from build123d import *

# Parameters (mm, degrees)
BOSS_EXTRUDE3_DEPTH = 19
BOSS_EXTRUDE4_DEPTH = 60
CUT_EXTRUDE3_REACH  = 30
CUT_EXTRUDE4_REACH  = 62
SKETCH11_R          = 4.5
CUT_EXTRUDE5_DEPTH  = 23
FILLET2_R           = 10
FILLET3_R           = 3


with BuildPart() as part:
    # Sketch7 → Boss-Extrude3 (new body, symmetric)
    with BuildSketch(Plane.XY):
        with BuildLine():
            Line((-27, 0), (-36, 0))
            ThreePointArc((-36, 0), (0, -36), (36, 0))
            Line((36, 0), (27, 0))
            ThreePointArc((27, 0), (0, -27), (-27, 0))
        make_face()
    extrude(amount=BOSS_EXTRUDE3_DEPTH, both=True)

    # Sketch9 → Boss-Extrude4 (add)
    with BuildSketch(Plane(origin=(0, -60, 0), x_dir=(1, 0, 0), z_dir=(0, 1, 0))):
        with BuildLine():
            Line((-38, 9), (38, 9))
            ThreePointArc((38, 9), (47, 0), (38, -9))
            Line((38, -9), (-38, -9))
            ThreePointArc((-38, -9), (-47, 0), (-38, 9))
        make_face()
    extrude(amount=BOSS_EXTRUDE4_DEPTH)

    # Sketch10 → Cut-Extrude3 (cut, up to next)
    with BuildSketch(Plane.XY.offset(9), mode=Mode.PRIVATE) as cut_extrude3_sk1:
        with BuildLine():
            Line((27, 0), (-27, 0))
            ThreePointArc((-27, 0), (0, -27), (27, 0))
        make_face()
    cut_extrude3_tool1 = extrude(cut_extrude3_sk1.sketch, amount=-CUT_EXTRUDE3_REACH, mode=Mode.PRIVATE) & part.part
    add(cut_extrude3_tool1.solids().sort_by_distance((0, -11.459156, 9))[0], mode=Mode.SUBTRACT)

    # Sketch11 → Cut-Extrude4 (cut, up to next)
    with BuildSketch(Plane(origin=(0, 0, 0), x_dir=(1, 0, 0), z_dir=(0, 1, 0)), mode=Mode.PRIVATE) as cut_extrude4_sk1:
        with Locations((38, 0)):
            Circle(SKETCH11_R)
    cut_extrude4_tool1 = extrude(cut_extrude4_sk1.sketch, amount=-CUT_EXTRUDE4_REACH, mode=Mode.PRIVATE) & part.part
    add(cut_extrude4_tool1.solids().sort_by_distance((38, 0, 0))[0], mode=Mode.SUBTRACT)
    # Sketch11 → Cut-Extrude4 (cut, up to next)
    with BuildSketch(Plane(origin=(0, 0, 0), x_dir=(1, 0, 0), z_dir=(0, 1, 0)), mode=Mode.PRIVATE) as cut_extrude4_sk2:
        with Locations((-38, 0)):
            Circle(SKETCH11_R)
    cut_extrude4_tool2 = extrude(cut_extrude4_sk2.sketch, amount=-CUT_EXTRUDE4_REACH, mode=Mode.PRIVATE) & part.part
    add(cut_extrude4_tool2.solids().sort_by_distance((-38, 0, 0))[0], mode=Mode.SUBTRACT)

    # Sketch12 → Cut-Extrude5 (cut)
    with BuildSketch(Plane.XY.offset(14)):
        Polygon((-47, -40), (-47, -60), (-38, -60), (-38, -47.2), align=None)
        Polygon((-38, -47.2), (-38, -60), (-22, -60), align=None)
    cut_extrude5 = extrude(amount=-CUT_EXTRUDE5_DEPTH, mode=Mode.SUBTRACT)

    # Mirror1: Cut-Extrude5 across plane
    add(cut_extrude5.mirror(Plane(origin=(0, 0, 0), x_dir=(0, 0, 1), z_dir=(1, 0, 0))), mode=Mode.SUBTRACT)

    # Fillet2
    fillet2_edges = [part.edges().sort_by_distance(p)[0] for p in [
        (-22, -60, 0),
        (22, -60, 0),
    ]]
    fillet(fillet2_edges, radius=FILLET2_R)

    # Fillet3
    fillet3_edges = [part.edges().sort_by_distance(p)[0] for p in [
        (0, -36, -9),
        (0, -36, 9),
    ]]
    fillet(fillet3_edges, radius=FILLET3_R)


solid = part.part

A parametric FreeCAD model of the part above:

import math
import FreeCAD as App
import Part
import Sketcher
from FreeCAD import Vector
Q = App.Units.Quantity


def edges_at(feature, points):
    """Names of the edges that pass closest to the given points."""
    edges = feature.Shape.Edges
    near = lambda p: min(range(len(edges)), key=lambda i: edges[i].distToShape(Part.Vertex(*p))[0])
    return sorted({f"Edge{near(p) + 1}" for p in points})

doc = App.newDocument("Part")
params = doc.addObject("Spreadsheet::Sheet", "Params")
for row, (alias, value) in enumerate([
    ("sketch1_radius", "36 mm"),
    ("sketch1_radius2", "27 mm"),
    ("pad1_length", "38 mm"),
    ("sketch2_radius", "9 mm"),
    ("sketch2_width", "76 mm"),
    ("pad2_length", "60 mm"),
    ("sketch3_radius", "27 mm"),
    ("sketch4_diameter", "9 mm"),
    ("sketch5_diameter", "9 mm"),
    ("sketch6_width", "25 mm"),
    ("sketch6_height", "20 mm"),
    ("pocket4_length", "23 mm"),
    ("fillet_radius", "10 mm"),
    ("fillet2_radius", "3 mm"),
], start=1):
    params.set(f"A{row}", alias)
    params.set(f"B{row}", "=" + value)
    params.setAlias(f"B{row}", alias)

body = doc.addObject("PartDesign::Body", "Body")

# Sketch on XY plane
sketch1 = body.newObject("Sketcher::SketchObject", "Sketch")
sketch1.AttachmentSupport = (doc.getObject("XY_Plane"), [""])
sketch1.MapMode = "FlatFace"
sketch1.addGeometry(Part.LineSegment(Vector(-27, 0, 0), Vector(-36, 0, 0)), False)
sketch1.addGeometry(Part.ArcOfCircle(Part.Circle(Vector(0, 0, 0), Vector(0, 0, 1), 36), math.radians(180), math.radians(360)), False)
sketch1.addGeometry(Part.LineSegment(Vector(36, 0, 0), Vector(27, 0, 0)), False)
sketch1.addGeometry(Part.ArcOfCircle(Part.Circle(Vector(0, 0, 0), Vector(0, 0, 1), 27), math.radians(180), math.radians(360)), False)
sketch1.addConstraint(Sketcher.Constraint("Coincident", 0, 2, 1, 1))
sketch1.addConstraint(Sketcher.Constraint("Coincident", 1, 2, 2, 1))
sketch1.addConstraint(Sketcher.Constraint("Coincident", 2, 2, 3, 2))
sketch1.addConstraint(Sketcher.Constraint("Coincident", 3, 1, 0, 1))
sketch1.addConstraint(Sketcher.Constraint("Horizontal", 0))
sketch1.addConstraint(Sketcher.Constraint("Horizontal", 2))
sketch1.addConstraint(Sketcher.Constraint("Coincident", 1, 3, -1, 1))
sketch1.addConstraint(Sketcher.Constraint("Coincident", 3, 3, -1, 1))
sketch1.addConstraint(Sketcher.Constraint("PointOnObject", 0, 2, -1))
sketch1.addConstraint(Sketcher.Constraint("PointOnObject", 1, 2, -1))
sketch1.addConstraint(Sketcher.Constraint("Radius", 1, Q("36 mm")))
sketch1.addConstraint(Sketcher.Constraint("Radius", 3, Q("27 mm")))
sketch1.setExpression("Constraints[10]", "Params.sketch1_radius")
sketch1.setExpression("Constraints[11]", "Params.sketch1_radius2")
pad1 = body.newObject("PartDesign::Pad", "Pad")
pad1.Profile = sketch1
pad1.setExpression("Length", "Params.pad1_length")
pad1.Midplane = True

# Sketch on XZ plane
sketch2 = body.newObject("Sketcher::SketchObject", "Sketch001")
sketch2.AttachmentSupport = (doc.getObject("XZ_Plane"), [""])
sketch2.MapMode = "FlatFace"
sketch2.AttachmentOffset = App.Placement(Vector(0, 0, 60), App.Rotation())
sketch2.addGeometry(Part.LineSegment(Vector(38, -9, 0), Vector(-38, -9, 0)), False)
sketch2.addGeometry(Part.ArcOfCircle(Part.Circle(Vector(-38, 0, 0), Vector(0, 0, 1), 9), math.radians(90), math.radians(270)), False)
sketch2.addGeometry(Part.LineSegment(Vector(-38, 9, 0), Vector(38, 9, 0)), False)
sketch2.addGeometry(Part.ArcOfCircle(Part.Circle(Vector(38, 0, 0), Vector(0, 0, 1), 9), math.radians(-90), math.radians(90)), False)
sketch2.addConstraint(Sketcher.Constraint("Tangent", 0, 2, 1, 2))
sketch2.addConstraint(Sketcher.Constraint("Tangent", 1, 1, 2, 1))
sketch2.addConstraint(Sketcher.Constraint("Tangent", 2, 2, 3, 2))
sketch2.addConstraint(Sketcher.Constraint("Tangent", 3, 1, 0, 1))
sketch2.addConstraint(Sketcher.Constraint("Horizontal", 0))
sketch2.addConstraint(Sketcher.Constraint("Horizontal", 2))
sketch2.addConstraint(Sketcher.Constraint("Symmetric", 1, 3, 3, 3, -1, 1))
sketch2.addConstraint(Sketcher.Constraint("Radius", 1, Q("9 mm")))
sketch2.addConstraint(Sketcher.Constraint("DistanceX", 0, 2, 0, 1, Q("76 mm")))
sketch2.setExpression("Constraints[7]", "Params.sketch2_radius")
sketch2.setExpression("Constraints[8]", "Params.sketch2_width")
pad2 = body.newObject("PartDesign::Pad", "Pad001")
pad2.Profile = sketch2
pad2.setExpression("Length", "Params.pad2_length")
pad2.Reversed = True

# Sketch on XY plane
sketch3 = body.newObject("Sketcher::SketchObject", "Sketch002")
sketch3.AttachmentSupport = (doc.getObject("XY_Plane"), [""])
sketch3.MapMode = "FlatFace"
sketch3.AttachmentOffset = App.Placement(Vector(0, 0, 9), App.Rotation())
sketch3.addGeometry(Part.LineSegment(Vector(27, 0, 0), Vector(-27, 0, 0)), False)
sketch3.addGeometry(Part.ArcOfCircle(Part.Circle(Vector(0, 0, 0), Vector(0, 0, 1), 27), math.radians(180), math.radians(360)), False)
sketch3.addConstraint(Sketcher.Constraint("Coincident", 0, 1, 1, 2))
sketch3.addConstraint(Sketcher.Constraint("Coincident", 1, 1, 0, 2))
sketch3.addConstraint(Sketcher.Constraint("Horizontal", 0))
sketch3.addConstraint(Sketcher.Constraint("Coincident", 1, 3, -1, 1))
sketch3.addConstraint(Sketcher.Constraint("PointOnObject", 0, 1, -1))
sketch3.addConstraint(Sketcher.Constraint("Radius", 1, Q("27 mm")))
sketch3.setExpression("Constraints[5]", "Params.sketch3_radius")
pocket1 = body.newObject("PartDesign::Pocket", "Pocket")
pocket1.Profile = sketch3
pocket1.Type = "UpToFirst"

# Sketch on XZ plane
sketch4 = body.newObject("Sketcher::SketchObject", "Sketch003")
sketch4.AttachmentSupport = (doc.getObject("XZ_Plane"), [""])
sketch4.MapMode = "FlatFace"
sketch4.addGeometry(Part.Circle(Vector(38, 0, 0), Vector(0, 0, 1), 4.5), False)
sketch4.addConstraint(Sketcher.Constraint("PointOnObject", 0, 3, -1))
sketch4.addConstraint(Sketcher.Constraint("Diameter", 0, Q("9 mm")))
sketch4.addConstraint(Sketcher.Constraint("DistanceX", -1, 1, 0, 3, Q("38 mm")))
sketch4.setExpression("Constraints[1]", "Params.sketch4_diameter")
pocket2 = body.newObject("PartDesign::Pocket", "Pocket001")
pocket2.Profile = sketch4
pocket2.Type = "UpToFirst"
pocket2.Reversed = True

# Sketch on XZ plane
sketch5 = body.newObject("Sketcher::SketchObject", "Sketch004")
sketch5.AttachmentSupport = (doc.getObject("XZ_Plane"), [""])
sketch5.MapMode = "FlatFace"
sketch5.addGeometry(Part.Circle(Vector(-38, 0, 0), Vector(0, 0, 1), 4.5), False)
sketch5.addConstraint(Sketcher.Constraint("PointOnObject", 0, 3, -1))
sketch5.addConstraint(Sketcher.Constraint("Diameter", 0, Q("9 mm")))
sketch5.addConstraint(Sketcher.Constraint("DistanceX", 0, 3, -1, 1, Q("38 mm")))
sketch5.setExpression("Constraints[1]", "Params.sketch5_diameter")
pocket3 = body.newObject("PartDesign::Pocket", "Pocket002")
pocket3.Profile = sketch5
pocket3.Type = "UpToFirst"
pocket3.Reversed = True

# Sketch on XY plane
sketch6 = body.newObject("Sketcher::SketchObject", "Sketch005")
sketch6.AttachmentSupport = (doc.getObject("XY_Plane"), [""])
sketch6.MapMode = "FlatFace"
sketch6.AttachmentOffset = App.Placement(Vector(0, 0, 14), App.Rotation())
sketch6.addGeometry(Part.LineSegment(Vector(-47, -40, 0), Vector(-47, -60, 0)), False)
sketch6.addGeometry(Part.LineSegment(Vector(-47, -60, 0), Vector(-22, -60, 0)), False)
sketch6.addGeometry(Part.LineSegment(Vector(-22, -60, 0), Vector(-47, -40, 0)), False)
sketch6.addConstraint(Sketcher.Constraint("Coincident", 0, 2, 1, 1))
sketch6.addConstraint(Sketcher.Constraint("Coincident", 1, 2, 2, 1))
sketch6.addConstraint(Sketcher.Constraint("Coincident", 2, 2, 0, 1))
sketch6.addConstraint(Sketcher.Constraint("Vertical", 0))
sketch6.addConstraint(Sketcher.Constraint("Horizontal", 1))
sketch6.addConstraint(Sketcher.Constraint("DistanceX", 1, 1, 1, 2, Q("25 mm")))
sketch6.addConstraint(Sketcher.Constraint("DistanceY", 0, 2, 0, 1, Q("20 mm")))
sketch6.addConstraint(Sketcher.Constraint("DistanceX", 0, 2, -1, 1, Q("47 mm")))
sketch6.addConstraint(Sketcher.Constraint("DistanceY", 0, 2, -1, 1, Q("60 mm")))
sketch6.setExpression("Constraints[5]", "Params.sketch6_width")
sketch6.setExpression("Constraints[6]", "Params.sketch6_height")
pocket4 = body.newObject("PartDesign::Pocket", "Pocket003")
pocket4.Profile = sketch6
pocket4.setExpression("Length", "Params.pocket4_length")
doc.recompute()

mirrored = body.newObject("PartDesign::Mirrored", "Mirrored")
mirrored.Originals = [pocket4]
mirrored.MirrorPlane = (doc.getObject("YZ_Plane"), [""])
body.Tip = mirrored
doc.recompute()

fillet = body.newObject("PartDesign::Fillet", "Fillet")
fillet.Base = (mirrored, edges_at(mirrored, [(-22, -60, 0), (22, -60, 0)]))
fillet.setExpression("Radius", "Params.fillet_radius")
doc.recompute()

fillet2 = body.newObject("PartDesign::Fillet", "Fillet001")
fillet2.Base = (fillet, edges_at(fillet, [(0, -36, -9), (0, -36, 9)]))
fillet2.setExpression("Radius", "Params.fillet2_radius")

doc.recompute()
